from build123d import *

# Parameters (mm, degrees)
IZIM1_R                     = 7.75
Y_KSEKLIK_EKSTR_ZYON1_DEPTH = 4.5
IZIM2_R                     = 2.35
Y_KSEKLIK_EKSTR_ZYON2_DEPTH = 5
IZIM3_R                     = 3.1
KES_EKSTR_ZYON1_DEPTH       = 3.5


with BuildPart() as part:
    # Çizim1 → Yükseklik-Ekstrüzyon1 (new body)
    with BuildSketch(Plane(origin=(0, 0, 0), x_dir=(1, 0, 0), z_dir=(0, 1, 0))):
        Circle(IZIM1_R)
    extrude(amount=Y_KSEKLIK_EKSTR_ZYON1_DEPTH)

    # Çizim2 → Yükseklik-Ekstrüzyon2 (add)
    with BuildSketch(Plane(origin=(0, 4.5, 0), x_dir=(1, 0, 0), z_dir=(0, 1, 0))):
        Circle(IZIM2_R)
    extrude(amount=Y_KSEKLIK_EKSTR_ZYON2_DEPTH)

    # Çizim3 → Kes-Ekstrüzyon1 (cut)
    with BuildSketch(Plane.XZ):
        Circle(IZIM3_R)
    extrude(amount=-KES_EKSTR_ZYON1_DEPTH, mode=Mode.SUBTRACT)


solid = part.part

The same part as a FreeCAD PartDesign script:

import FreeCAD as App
import Part
import Sketcher

doc = App.newDocument("Part")
body = doc.addObject("PartDesign::Body", "Body")

sketch1 = body.newObject("Sketcher::SketchObject", "Sketch")
sketch1.AttachmentSupport = (doc.getObject("XZ_Plane"), [""])
sketch1.MapMode = "FlatFace"
sketch1.addGeometry(Part.Circle(App.Vector(0, 0, 0), App.Vector(0, 0, 1), 7.75), False)
sketch1.addConstraint(Sketcher.Constraint("Coincident", 0, 3, -1, 1))
sketch1.addConstraint(Sketcher.Constraint("Diameter", 0, 15.5))
pad1 = body.newObject("PartDesign::Pad", "Pad")
pad1.Profile = sketch1
pad1.Length = 4.5
pad1.Reversed = True

sketch2 = body.newObject("Sketcher::SketchObject", "Sketch001")
sketch2.AttachmentSupport = (doc.getObject("XZ_Plane"), [""])
sketch2.MapMode = "FlatFace"
sketch2.AttachmentOffset = App.Placement(App.Vector(0, 0, -4.5), App.Rotation())
sketch2.addGeometry(Part.Circle(App.Vector(0, 0, 0), App.Vector(0, 0, 1), 2.35), False)
sketch2.addConstraint(Sketcher.Constraint("Coincident", 0, 3, -1, 1))
sketch2.addConstraint(Sketcher.Constraint("Diameter", 0, 4.7))
pad2 = body.newObject("PartDesign::Pad", "Pad001")
pad2.Profile = sketch2
pad2.Length = 5
pad2.Reversed = True

sketch3 = body.newObject("Sketcher::SketchObject", "Sketch002")
sketch3.AttachmentSupport = (doc.getObject("XZ_Plane"), [""])
sketch3.MapMode = "FlatFace"
sketch3.addGeometry(Part.Circle(App.Vector(0, 0, 0), App.Vector(0, 0, 1), 3.1), False)
sketch3.addConstraint(Sketcher.Constraint("Coincident", 0, 3, -1, 1))
sketch3.addConstraint(Sketcher.Constraint("Diameter", 0, 6.2))
pocket1 = body.newObject("PartDesign::Pocket", "Pocket")
pocket1.Profile = sketch3
pocket1.Length = 3.5

doc.recompute()
